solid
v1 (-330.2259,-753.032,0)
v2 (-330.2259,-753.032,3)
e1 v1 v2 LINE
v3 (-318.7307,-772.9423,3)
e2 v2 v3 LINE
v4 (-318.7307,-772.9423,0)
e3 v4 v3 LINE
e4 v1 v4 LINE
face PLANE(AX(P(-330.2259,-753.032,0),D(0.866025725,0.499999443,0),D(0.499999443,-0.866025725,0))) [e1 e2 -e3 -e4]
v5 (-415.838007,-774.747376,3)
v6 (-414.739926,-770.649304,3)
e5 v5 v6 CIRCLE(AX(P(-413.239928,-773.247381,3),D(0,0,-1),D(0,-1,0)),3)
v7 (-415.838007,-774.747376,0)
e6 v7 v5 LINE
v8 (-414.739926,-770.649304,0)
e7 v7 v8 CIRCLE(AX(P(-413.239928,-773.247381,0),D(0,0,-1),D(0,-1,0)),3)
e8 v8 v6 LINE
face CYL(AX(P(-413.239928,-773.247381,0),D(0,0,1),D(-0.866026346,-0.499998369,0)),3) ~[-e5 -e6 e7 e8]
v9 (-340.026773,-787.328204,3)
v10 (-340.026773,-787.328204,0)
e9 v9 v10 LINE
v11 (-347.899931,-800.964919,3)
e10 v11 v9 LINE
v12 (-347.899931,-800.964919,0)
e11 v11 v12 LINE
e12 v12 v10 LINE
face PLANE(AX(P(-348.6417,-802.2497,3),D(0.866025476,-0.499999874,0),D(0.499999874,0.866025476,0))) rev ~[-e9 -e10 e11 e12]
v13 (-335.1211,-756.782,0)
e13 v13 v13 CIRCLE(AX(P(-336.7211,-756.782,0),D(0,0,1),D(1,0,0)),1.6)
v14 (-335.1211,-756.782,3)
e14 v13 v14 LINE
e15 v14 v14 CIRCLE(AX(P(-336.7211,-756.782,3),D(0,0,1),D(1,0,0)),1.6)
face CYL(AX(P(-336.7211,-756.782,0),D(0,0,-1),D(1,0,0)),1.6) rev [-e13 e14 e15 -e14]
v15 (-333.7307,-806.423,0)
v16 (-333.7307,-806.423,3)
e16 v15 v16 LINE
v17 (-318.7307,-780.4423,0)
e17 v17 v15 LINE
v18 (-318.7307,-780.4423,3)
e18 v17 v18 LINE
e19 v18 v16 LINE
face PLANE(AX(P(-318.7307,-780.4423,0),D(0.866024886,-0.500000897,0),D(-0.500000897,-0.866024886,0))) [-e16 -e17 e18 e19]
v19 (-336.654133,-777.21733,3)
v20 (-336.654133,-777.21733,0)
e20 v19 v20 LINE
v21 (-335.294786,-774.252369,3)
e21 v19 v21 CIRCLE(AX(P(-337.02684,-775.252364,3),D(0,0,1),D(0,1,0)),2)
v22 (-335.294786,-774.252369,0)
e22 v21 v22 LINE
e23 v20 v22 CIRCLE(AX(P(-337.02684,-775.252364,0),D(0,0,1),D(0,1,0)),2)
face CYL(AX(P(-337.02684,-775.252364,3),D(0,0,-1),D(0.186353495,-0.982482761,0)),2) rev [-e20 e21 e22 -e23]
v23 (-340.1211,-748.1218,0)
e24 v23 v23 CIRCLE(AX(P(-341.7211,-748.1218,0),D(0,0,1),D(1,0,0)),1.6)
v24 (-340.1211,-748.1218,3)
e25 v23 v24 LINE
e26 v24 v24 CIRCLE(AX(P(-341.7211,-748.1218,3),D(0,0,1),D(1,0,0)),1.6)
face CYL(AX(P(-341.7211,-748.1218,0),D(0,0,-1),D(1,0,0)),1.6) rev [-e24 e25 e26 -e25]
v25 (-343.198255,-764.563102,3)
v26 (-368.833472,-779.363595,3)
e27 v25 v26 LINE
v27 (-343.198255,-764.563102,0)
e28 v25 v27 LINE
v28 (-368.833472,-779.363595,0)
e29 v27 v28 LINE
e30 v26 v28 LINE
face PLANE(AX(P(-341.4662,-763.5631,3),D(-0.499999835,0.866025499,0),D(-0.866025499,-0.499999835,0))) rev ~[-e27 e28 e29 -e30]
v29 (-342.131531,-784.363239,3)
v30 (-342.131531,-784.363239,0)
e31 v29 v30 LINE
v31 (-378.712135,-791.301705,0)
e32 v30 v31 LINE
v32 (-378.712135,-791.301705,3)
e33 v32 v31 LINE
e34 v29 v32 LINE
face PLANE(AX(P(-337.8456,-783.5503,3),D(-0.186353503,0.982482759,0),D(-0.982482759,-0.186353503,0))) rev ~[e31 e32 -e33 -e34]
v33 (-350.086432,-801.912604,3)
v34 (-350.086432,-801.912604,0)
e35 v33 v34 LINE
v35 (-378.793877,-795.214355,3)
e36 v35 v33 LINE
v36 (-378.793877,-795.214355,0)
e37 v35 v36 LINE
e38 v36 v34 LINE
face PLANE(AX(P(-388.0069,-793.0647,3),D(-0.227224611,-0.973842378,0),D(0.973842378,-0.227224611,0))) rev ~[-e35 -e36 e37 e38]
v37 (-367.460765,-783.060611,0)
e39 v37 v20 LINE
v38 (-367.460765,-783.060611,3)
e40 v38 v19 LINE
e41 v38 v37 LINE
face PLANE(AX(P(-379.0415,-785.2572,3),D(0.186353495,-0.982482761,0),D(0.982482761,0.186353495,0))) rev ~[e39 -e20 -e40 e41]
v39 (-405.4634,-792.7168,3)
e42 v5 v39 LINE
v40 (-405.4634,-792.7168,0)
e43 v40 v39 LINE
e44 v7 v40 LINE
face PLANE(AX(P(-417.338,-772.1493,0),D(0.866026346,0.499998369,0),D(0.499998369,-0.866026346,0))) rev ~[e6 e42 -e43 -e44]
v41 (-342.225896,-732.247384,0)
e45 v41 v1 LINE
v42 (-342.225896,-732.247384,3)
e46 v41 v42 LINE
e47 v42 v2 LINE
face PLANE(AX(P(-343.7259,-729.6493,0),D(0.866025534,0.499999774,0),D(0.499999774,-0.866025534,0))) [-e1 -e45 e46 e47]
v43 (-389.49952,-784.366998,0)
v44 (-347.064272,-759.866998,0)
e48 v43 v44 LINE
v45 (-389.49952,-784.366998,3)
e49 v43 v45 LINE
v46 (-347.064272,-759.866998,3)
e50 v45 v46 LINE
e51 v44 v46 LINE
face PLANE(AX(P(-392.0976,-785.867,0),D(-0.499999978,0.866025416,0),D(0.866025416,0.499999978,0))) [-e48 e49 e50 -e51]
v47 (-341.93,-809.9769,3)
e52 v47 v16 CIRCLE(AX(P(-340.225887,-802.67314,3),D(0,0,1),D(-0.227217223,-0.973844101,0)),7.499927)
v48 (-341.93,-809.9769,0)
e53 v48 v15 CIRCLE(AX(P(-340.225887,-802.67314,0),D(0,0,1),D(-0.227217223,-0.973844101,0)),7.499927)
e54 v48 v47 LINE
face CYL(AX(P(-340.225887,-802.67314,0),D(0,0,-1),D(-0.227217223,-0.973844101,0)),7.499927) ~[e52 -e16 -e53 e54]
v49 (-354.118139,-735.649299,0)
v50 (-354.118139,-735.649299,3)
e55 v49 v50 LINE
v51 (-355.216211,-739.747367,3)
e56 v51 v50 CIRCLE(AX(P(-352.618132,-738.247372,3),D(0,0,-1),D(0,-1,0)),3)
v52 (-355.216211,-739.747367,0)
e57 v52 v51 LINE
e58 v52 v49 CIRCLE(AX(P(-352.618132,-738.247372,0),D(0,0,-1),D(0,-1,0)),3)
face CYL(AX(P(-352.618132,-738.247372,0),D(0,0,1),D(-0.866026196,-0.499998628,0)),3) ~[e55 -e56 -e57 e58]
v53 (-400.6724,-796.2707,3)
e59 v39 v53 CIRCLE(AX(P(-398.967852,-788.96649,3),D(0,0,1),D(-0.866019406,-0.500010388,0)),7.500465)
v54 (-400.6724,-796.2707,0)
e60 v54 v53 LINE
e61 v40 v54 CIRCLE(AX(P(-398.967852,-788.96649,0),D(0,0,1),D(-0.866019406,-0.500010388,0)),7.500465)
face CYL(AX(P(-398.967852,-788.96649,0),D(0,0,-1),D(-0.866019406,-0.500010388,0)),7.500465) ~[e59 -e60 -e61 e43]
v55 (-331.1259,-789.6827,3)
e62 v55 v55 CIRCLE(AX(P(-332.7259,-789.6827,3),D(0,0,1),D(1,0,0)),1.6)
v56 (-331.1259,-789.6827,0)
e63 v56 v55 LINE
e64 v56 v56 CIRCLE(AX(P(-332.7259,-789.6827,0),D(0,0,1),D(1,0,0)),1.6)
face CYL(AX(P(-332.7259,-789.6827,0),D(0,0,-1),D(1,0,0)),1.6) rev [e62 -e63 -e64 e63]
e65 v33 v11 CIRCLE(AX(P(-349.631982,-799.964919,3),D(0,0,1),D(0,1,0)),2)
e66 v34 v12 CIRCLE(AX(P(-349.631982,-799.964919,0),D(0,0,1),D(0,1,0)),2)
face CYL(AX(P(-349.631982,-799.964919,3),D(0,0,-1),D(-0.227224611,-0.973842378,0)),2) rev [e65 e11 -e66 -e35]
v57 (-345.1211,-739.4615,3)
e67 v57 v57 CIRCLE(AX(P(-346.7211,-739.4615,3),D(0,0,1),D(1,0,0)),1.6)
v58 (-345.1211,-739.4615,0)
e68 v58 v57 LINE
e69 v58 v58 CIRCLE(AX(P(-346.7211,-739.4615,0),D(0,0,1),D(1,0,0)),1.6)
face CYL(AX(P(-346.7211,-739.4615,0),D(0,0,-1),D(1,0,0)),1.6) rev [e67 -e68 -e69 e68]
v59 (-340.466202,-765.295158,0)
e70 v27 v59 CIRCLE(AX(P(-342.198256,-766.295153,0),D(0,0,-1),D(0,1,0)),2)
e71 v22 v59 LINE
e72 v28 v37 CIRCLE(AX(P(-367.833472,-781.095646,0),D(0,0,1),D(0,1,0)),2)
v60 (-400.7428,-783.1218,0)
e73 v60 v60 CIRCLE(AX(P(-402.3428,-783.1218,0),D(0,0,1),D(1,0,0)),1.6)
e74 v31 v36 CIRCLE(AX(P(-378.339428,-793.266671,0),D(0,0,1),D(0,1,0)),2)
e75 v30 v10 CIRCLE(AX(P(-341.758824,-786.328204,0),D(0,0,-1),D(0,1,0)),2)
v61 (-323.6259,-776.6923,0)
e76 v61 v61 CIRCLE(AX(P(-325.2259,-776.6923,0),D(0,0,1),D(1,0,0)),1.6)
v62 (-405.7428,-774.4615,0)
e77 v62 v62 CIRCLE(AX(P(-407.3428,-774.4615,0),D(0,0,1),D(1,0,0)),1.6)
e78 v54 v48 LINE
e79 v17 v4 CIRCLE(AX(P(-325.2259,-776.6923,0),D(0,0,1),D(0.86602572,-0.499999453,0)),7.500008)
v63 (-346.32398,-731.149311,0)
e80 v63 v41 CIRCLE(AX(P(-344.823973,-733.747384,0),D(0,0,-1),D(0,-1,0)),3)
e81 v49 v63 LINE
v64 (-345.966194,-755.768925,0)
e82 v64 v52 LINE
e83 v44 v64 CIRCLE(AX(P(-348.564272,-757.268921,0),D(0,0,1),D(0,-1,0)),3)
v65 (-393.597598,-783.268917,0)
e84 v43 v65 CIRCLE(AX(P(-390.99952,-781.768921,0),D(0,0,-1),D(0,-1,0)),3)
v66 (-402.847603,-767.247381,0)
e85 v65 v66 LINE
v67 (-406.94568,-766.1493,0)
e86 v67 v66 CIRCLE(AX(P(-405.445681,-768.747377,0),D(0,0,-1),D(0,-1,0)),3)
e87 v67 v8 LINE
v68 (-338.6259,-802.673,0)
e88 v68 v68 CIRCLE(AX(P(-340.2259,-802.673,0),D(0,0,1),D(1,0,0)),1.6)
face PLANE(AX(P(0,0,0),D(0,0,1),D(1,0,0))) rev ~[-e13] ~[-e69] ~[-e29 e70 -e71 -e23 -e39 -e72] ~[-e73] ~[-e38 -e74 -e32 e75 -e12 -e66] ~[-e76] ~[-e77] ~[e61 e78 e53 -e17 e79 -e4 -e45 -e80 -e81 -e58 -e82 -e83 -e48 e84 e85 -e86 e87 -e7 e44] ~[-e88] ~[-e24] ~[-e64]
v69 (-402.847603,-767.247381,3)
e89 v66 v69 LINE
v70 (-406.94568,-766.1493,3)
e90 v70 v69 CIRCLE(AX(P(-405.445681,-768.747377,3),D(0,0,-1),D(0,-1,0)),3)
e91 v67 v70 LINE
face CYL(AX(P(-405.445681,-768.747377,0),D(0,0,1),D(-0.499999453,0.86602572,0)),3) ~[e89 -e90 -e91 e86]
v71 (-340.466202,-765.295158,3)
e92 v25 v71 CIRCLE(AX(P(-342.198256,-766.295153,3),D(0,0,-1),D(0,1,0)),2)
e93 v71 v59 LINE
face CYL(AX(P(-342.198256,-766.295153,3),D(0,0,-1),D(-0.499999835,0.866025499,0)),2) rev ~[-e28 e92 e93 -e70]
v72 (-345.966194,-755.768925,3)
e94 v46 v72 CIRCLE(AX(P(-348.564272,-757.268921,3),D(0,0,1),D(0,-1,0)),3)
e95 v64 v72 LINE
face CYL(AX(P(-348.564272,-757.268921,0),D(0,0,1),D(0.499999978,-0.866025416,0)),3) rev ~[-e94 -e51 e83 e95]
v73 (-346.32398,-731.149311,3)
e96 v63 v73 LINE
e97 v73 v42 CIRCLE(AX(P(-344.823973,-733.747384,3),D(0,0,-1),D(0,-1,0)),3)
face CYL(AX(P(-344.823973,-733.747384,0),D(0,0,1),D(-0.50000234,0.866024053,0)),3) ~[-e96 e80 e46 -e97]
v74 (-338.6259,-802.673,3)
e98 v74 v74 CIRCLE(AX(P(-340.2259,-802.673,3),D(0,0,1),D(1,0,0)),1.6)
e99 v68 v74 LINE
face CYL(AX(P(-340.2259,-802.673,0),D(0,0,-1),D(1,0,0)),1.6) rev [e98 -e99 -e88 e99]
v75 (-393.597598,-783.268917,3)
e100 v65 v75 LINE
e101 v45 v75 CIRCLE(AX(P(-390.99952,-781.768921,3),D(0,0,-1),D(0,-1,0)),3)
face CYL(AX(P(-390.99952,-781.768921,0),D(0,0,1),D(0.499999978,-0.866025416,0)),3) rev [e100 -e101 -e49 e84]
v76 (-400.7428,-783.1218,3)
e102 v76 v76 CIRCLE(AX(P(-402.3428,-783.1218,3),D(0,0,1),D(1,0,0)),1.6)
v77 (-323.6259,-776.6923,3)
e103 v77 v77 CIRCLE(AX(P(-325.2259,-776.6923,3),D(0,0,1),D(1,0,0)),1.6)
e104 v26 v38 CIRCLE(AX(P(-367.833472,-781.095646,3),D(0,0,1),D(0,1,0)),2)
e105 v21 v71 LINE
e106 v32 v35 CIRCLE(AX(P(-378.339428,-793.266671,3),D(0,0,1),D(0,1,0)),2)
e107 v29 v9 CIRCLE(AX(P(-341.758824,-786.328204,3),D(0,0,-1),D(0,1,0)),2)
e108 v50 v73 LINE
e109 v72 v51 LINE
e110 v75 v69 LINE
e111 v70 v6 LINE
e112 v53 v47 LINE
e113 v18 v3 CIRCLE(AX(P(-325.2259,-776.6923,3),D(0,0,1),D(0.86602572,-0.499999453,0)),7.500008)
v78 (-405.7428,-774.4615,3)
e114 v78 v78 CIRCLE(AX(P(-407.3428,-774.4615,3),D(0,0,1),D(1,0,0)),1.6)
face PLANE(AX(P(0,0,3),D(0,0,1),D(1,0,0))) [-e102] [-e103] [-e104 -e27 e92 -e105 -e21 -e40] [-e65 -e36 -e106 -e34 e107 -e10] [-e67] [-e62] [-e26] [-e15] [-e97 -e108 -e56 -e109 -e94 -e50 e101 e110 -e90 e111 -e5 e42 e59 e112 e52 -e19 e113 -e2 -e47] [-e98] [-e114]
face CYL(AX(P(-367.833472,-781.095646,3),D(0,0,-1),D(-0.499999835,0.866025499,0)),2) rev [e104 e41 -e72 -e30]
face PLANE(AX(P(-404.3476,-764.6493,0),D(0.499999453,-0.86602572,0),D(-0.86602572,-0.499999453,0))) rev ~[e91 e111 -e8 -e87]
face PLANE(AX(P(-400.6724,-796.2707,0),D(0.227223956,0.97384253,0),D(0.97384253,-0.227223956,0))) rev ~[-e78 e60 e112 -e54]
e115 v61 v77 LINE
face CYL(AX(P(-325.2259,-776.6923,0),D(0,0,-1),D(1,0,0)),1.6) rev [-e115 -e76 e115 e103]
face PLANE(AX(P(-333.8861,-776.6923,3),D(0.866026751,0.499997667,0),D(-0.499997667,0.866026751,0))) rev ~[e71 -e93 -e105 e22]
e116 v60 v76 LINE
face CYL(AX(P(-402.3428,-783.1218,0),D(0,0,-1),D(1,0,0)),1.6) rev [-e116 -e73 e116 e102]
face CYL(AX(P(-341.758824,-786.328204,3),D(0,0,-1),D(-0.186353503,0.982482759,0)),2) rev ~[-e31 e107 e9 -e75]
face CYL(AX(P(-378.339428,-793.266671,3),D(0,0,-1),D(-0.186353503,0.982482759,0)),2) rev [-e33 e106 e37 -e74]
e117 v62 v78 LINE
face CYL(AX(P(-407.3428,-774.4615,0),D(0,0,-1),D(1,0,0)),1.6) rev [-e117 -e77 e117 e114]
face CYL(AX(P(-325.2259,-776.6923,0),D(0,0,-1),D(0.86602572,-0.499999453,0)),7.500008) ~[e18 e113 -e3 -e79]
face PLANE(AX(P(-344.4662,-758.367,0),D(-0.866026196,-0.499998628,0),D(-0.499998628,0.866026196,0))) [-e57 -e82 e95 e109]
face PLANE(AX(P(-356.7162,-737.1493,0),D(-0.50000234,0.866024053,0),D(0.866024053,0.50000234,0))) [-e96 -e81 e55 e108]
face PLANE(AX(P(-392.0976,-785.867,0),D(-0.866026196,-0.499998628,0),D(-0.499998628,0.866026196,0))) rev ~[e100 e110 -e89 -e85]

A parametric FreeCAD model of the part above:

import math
import FreeCAD as App
import Part
import Sketcher

V = App.Vector
Q = App.Units.Quantity


def edges_at(feature, points):
    """Names of the edges that pass closest to the given points."""
    edges = feature.Shape.Edges
    near = lambda p: min(range(len(edges)), key=lambda i: edges[i].distToShape(Part.Vertex(*p))[0])
    return sorted({f"Edge{near(p) + 1}" for p in points})

doc = App.newDocument("Part")
params = doc.addObject("Spreadsheet::Sheet", "Params")
for row, (alias, value) in enumerate([
    ("sketch1_diameter", "3.2 mm"),
    ("sketch1_diameter2", "3.2 mm"),
    ("sketch1_diameter3", "3.2 mm"),
    ("sketch1_diameter4", "3.2 mm"),
    ("sketch1_diameter5", "3.2 mm"),
    ("pad1_length", "3 mm"),
    ("fillet_radius", "3 mm"),
    ("pocket1_length", "3 mm"),
    ("fillet2_radius", "2 mm"),
], start=1):
    params.set(f"A{row}", alias)
    params.set(f"B{row}", "=" + value)
    params.setAlias(f"B{row}", alias)

body = doc.addObject("PartDesign::Body", "Body")

# Sketch on XY plane
sketch1 = body.newObject("Sketcher::SketchObject", "Sketch")
sketch1.AttachmentSupport = (doc.getObject("XY_Plane"), [""])
sketch1.MapMode = "FlatFace"
sketch1.addGeometry([
    Part.LineSegment(V(-344.4662, -758.367, 0), V(-392.0976, -785.867, 0)),  # 0
    Part.LineSegment(V(-392.0976, -785.867, 0), V(-404.3476, -764.6493, 0)),  # 1
    Part.LineSegment(V(-404.3476, -764.6493, 0), V(-417.338, -772.1493, 0)),  # 2
    Part.LineSegment(V(-417.338, -772.1493, 0), V(-405.4634, -792.7168, 0)),  # 3
    Part.ArcOfCircle(Part.Circle(V(-398.9682, -788.9668, 0), V(0, 0, 1), 7.500008), math.radians(-150.000036), math.radians(-103.1337)),  # 4
    Part.LineSegment(V(-400.6724, -796.2707, 0), V(-341.93, -809.9769, 0)),  # 5
    Part.ArcOfCircle(Part.Circle(V(-340.2259, -802.673, 0), V(0, 0, 1), 7.500061), math.radians(-103.132956), math.radians(-29.999964)),  # 6
    Part.LineSegment(V(-333.7307, -806.423, 0), V(-318.7307, -780.4423, 0)),  # 7
    Part.ArcOfCircle(Part.Circle(V(-325.2259, -776.6923, 0), V(0, 0, 1), 7.500008), math.radians(-29.999964), math.radians(29.999964)),  # 8
    Part.LineSegment(V(-318.7307, -772.9423, 0), V(-330.2259, -753.032, 0)),  # 9
    Part.LineSegment(V(-330.2259, -753.032, 0), V(-343.7259, -729.6493, 0)),  # 10
    Part.LineSegment(V(-343.7259, -729.6493, 0), V(-356.7162, -737.1493, 0)),  # 11
    Part.LineSegment(V(-356.7162, -737.1493, 0), V(-344.4662, -758.367, 0)),  # 12
    Part.Circle(V(-402.3428, -783.1218, 0), V(0, 0, 1), 1.6),  # 13
    Part.Circle(V(-407.3428, -774.4615, 0), V(0, 0, 1), 1.6),  # 14
    Part.Circle(V(-340.2259, -802.673, 0), V(0, 0, 1), 1.6),  # 15
    Part.Circle(V(-332.7259, -789.6827, 0), V(0, 0, 1), 1.6),  # 16
    Part.Circle(V(-325.2259, -776.6923, 0), V(0, 0, 1), 1.6),  # 17
    Part.Circle(V(-336.7211, -756.782, 0), V(0, 0, 1), 1.6),  # 18
    Part.Circle(V(-341.7211, -748.1218, 0), V(0, 0, 1), 1.6),  # 19
    Part.Circle(V(-346.7211, -739.4615, 0), V(0, 0, 1), 1.6),  # 20
], False)
sketch1.addConstraint([
    Sketcher.Constraint("Coincident", 0, 2, 1, 1),
    Sketcher.Constraint("Coincident", 1, 2, 2, 1),
    Sketcher.Constraint("Coincident", 2, 2, 3, 1),
    Sketcher.Constraint("Coincident", 3, 2, 4, 1),
    Sketcher.Constraint("Coincident", 4, 2, 5, 1),
    Sketcher.Constraint("Coincident", 5, 2, 6, 1),
    Sketcher.Constraint("Coincident", 6, 2, 7, 1),
    Sketcher.Constraint("Coincident", 7, 2, 8, 1),
    Sketcher.Constraint("Coincident", 8, 2, 9, 1),
    Sketcher.Constraint("Coincident", 9, 2, 10, 1),
    Sketcher.Constraint("Coincident", 10, 2, 11, 1),
    Sketcher.Constraint("Coincident", 11, 2, 12, 1),
    Sketcher.Constraint("Coincident", 12, 2, 0, 1),
    Sketcher.Constraint("Coincident", 15, 3, 6, 3),
    Sketcher.Constraint("Coincident", 17, 3, 8, 3),
    Sketcher.Constraint("Diameter", 13, Q("3.2 mm")),
    Sketcher.Constraint("Diameter", 14, Q("3.2 mm")),
    Sketcher.Constraint("Diameter", 15, Q("3.2 mm")),
    Sketcher.Constraint("Diameter", 16, Q("3.2 mm")),
    Sketcher.Constraint("Diameter", 17, Q("3.2 mm")),
    Sketcher.Constraint("Diameter", 18, Q("3.2 mm")),
    Sketcher.Constraint("Diameter", 19, Q("3.2 mm")),
    Sketcher.Constraint("Diameter", 20, Q("3.2 mm")),
    Sketcher.Constraint("Radius", 4, Q("7.5 mm")),
    Sketcher.Constraint("Radius", 6, Q("7.5 mm")),
    Sketcher.Constraint("Radius", 8, Q("7.5 mm")),
    Sketcher.Constraint("Distance", 2, Q("15 mm")),
    Sketcher.Constraint("Distance", 11, Q("15 mm")),
    Sketcher.Constraint("DistanceX", 6, 3, 8, 3, Q("15 mm")),
    Sketcher.Constraint("DistanceX", 14, 3, 13, 3, Q("5 mm")),
    Sketcher.Constraint("DistanceX", 19, 3, 18, 3, Q("5 mm")),
    Sketcher.Constraint("DistanceX", 20, 3, 19, 3, Q("5 mm")),
    Sketcher.Constraint("DistanceX", 6, 2, 7, 2, Q("15 mm")),
    Sketcher.Constraint("DistanceX", 9, 2, 8, 3, Q("5 mm")),
    Sketcher.Constraint("DistanceX", 6, 3, 16, 3, Q("7.5 mm")),
    Sketcher.Constraint("DistanceY", 2, 2, 1, 2, Q("7.5 mm")),
    Sketcher.Constraint("DistanceY", 7, 2, 8, 2, Q("7.5 mm")),
    Sketcher.Constraint("DistanceY", 11, 2, 10, 2, Q("7.5 mm")),
    Sketcher.Constraint("Distance", 0, Q("55 mm")),
    Sketcher.Constraint("Distance", 7, Q("30 mm")),
    Sketcher.Constraint("Distance", 10, Q("27 mm")),
    Sketcher.Constraint("Distance", 1, Q("24.5 mm")),
    Sketcher.Constraint("Distance", 12, Q("24.5 mm")),
    Sketcher.Constraint("DistanceX", 10, 2, 9, 2, Q("13.5 mm")),
    Sketcher.Constraint("DistanceX", 5, 2, -1, 1, Q("341.93 mm")),
    Sketcher.Constraint("DistanceX", 1, 2, 0, 2, Q("12.25 mm")),
    Sketcher.Constraint("DistanceY", 3, 2, 4, 3, Q("3.75 mm")),
    Sketcher.Constraint("DistanceY", 6, 2, 6, 3, Q("3.75 mm")),
    Sketcher.Constraint("DistanceY", 18, 3, 9, 2, Q("3.75 mm")),
    Sketcher.Constraint("DistanceX", 11, 2, 12, 2, Q("12.25 mm")),
    Sketcher.Constraint("DistanceX", 6, 3, -1, 1, Q("340.226 mm")),
    Sketcher.Constraint("DistanceY", 6, 3, -1, 1, Q("802.673 mm")),
    Sketcher.Constraint("DistanceX", 18, 3, -1, 1, Q("336.721 mm")),
    Sketcher.Constraint("DistanceY", 18, 3, -1, 1, Q("756.782 mm")),
    Sketcher.Constraint("DistanceY", 0, 2, -1, 1, Q("785.867 mm")),
    Sketcher.Constraint("DistanceY", 4, 3, 13, 3, Q("5.845 mm")),
    Sketcher.Constraint("DistanceX", 13, 3, 6, 3, Q("62.117 mm")),
    Sketcher.Constraint("DistanceY", 16, 3, 4, 3, Q("0.716 mm")),
    Sketcher.Constraint("DistanceY", 16, 3, 19, 3, Q("41.561 mm")),
    Sketcher.Constraint("DistanceX", 3, 2, 4, 2, Q("4.791 mm")),
    Sketcher.Constraint("Distance", 3, Q("23.7493 mm")),
    Sketcher.Constraint("Distance", 5, Q("60.3202 mm")),
    Sketcher.Constraint("DistanceY", 14, 3, -1, 1, Q("774.4615 mm")),
    Sketcher.Constraint("DistanceY", 20, 3, -1, 1, Q("739.4615 mm")),
])
sketch1.setExpression("Constraints[15]", "Params.sketch1_diameter")
sketch1.setExpression("Constraints[16]", "Params.sketch1_diameter2")
sketch1.setExpression("Constraints[17]", "Params.sketch1_diameter3")
sketch1.setExpression("Constraints[18]", "Params.sketch1_diameter4")
sketch1.setExpression("Constraints[19]", "Params.sketch1_diameter5")
pad1 = body.newObject("PartDesign::Pad", "Pad")
pad1.Profile = sketch1
pad1.setExpression("Length", "Params.pad1_length")
doc.recompute()

fillet = body.newObject("PartDesign::Fillet", "Fillet")
fillet.Base = (pad1, edges_at(pad1, [
    (-417.338, -772.149, 1.5),
    (-404.348, -764.649, 1.5),
    (-392.098, -785.867, 1.5),
    (-344.466, -758.367, 1.5),
    (-356.716, -737.149, 1.5),
    (-343.726, -729.649, 1.5),
]))
fillet.setExpression("Radius", "Params.fillet_radius")

# Sketch on XY plane
sketch2 = body.newObject("Sketcher::SketchObject", "Sketch001")
sketch2.AttachmentSupport = (doc.getObject("XY_Plane"), [""])
sketch2.MapMode = "FlatFace"
sketch2.AttachmentOffset = App.Placement(V(0, 0, 3), App.Rotation())
sketch2.addGeometry([
    Part.LineSegment(V(-338, -784, 0), V(-388, -793, 0)),  # 0
    Part.LineSegment(V(-388, -793, 0), V(-349, -802, 0)),  # 1
    Part.LineSegment(V(-349, -802, 0), V(-338, -784, 0)),  # 2
    Part.LineSegment(V(-341, -764, 0), V(-379, -785, 0)),  # 3
    Part.LineSegment(V(-379, -785, 0), V(-334, -777, 0)),  # 4
    Part.LineSegment(V(-334, -777, 0), V(-341, -764, 0)),  # 5
], False)
sketch2.addConstraint([
    Sketcher.Constraint("Coincident", 0, 2, 1, 1),
    Sketcher.Constraint("Coincident", 1, 2, 2, 1),
    Sketcher.Constraint("Coincident", 2, 2, 0, 1),
    Sketcher.Constraint("Coincident", 3, 2, 4, 1),
    Sketcher.Constraint("Coincident", 4, 2, 5, 1),
    Sketcher.Constraint("Coincident", 5, 2, 3, 1),
    Sketcher.Constraint("Parallel", 0, 4),
    Sketcher.Constraint("Perpendicular", 3, 5),
    Sketcher.Constraint("Angle", 2, Q("60 deg")),
    Sketcher.Constraint("Angle", 3, Q("-150 deg")),
    Sketcher.Constraint("Angle", 0, Q("-169.26 deg")),
    Sketcher.Constraint("DistanceX", 5, 2, 4, 2, Q("7.58 mm")),
    Sketcher.Constraint("DistanceX", 0, 2, -1, 1, Q("388.007 mm")),
    Sketcher.Constraint("DistanceX", 4, 2, -1, 1, Q("333.886 mm")),
    Sketcher.Constraint("DistanceY", 5, 2, -1, 1, Q("763.563 mm")),
    Sketcher.Constraint("DistanceY", 1, 2, 0, 2, Q("9.185 mm")),
    Sketcher.Constraint("DistanceX", 1, 2, 2, 2, Q("10.796 mm")),
    Sketcher.Constraint("DistanceY", 3, 2, 2, 2, Q("1.707 mm")),
])
pocket1 = body.newObject("PartDesign::Pocket", "Pocket")
pocket1.Profile = sketch2
pocket1.setExpression("Length", "Params.pocket1_length")
doc.recompute()

fillet2 = body.newObject("PartDesign::Fillet", "Fillet001")
fillet2.Base = (pocket1, edges_at(pocket1, [
    (-341.466, -763.563, 1.5),
    (-333.886, -776.692, 1.5),
    (-379.041, -785.257, 1.5),
    (-388.007, -793.065, 1.5),
    (-348.642, -802.25, 1.5),
    (-337.846, -783.55, 1.5),
]))
fillet2.setExpression("Radius", "Params.fillet2_radius")

doc.recompute()
